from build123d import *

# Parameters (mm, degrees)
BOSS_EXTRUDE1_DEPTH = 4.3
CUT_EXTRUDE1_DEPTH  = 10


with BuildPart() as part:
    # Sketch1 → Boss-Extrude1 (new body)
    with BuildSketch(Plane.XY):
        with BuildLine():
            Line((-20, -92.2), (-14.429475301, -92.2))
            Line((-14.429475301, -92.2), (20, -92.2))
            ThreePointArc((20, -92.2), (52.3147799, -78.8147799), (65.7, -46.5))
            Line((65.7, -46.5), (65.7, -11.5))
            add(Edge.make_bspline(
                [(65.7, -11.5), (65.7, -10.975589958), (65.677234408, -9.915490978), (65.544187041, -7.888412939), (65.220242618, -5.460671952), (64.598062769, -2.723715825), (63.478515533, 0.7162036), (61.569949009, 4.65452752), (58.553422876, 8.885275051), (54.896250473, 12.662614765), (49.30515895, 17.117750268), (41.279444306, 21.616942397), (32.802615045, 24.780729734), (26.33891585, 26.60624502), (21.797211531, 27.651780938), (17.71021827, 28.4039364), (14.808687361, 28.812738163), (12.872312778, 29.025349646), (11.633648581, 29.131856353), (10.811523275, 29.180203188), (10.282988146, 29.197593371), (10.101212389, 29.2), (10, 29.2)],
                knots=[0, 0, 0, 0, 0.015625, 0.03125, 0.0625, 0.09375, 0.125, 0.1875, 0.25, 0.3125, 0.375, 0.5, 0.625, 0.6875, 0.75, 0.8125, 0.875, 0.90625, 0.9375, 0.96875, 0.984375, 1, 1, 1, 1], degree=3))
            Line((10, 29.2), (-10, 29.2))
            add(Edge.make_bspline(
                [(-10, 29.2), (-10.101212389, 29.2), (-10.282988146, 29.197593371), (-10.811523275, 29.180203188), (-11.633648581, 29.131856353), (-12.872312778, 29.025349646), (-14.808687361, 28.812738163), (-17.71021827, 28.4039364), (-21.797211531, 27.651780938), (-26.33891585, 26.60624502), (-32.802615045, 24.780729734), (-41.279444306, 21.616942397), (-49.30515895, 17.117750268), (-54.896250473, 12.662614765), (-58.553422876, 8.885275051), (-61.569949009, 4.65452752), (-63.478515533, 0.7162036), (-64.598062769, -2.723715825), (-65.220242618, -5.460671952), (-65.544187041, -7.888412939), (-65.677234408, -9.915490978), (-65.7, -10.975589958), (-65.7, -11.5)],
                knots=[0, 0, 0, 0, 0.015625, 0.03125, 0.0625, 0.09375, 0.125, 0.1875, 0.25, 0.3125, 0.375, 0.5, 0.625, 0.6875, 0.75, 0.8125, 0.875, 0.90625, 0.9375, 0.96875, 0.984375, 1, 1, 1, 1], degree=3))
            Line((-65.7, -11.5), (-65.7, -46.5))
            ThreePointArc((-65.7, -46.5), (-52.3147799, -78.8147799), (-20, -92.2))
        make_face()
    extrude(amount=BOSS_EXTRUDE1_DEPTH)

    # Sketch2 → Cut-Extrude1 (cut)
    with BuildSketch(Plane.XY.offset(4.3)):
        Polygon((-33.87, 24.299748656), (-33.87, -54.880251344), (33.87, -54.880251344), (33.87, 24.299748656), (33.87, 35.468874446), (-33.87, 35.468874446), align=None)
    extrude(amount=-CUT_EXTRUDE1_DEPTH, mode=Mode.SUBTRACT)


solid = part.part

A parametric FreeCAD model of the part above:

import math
import FreeCAD as App
import Part
import Sketcher

V = App.Vector

doc = App.newDocument("Part")
body = doc.addObject("PartDesign::Body", "Body")

sketch1 = body.newObject("Sketcher::SketchObject", "Sketch")
sketch1.AttachmentSupport = (doc.getObject("XY_Plane"), [""])
sketch1.MapMode = "FlatFace"
sketch1.addGeometry([
    Part.LineSegment(V(-20, -92.2, 0), V(20, -92.2, 0)),
    Part.ArcOfCircle(Part.Circle(V(20, -46.5, 0), V(0, 0, 1), 45.7), math.radians(-90), math.radians(0)),
    Part.LineSegment(V(65.7, -46.5, 0), V(65.7, -11.5, 0)),
    Part.BSplineCurve([V(65.7, -11.5, 0), V(65.7, -10.97559, 0), V(65.677234, -9.915491, 0), V(65.544187, -7.888413, 0), V(65.220243, -5.460672, 0), V(64.598063, -2.723716, 0), V(63.478516, 0.716204, 0), V(61.569949, 4.654528, 0), V(58.553423, 8.885275, 0), V(54.89625, 12.662615, 0), V(49.305159, 17.11775, 0), V(41.279444, 21.616942, 0), V(32.802615, 24.78073, 0), V(26.338916, 26.606245, 0), V(21.797212, 27.651781, 0), V(17.710218, 28.403936, 0), V(14.808687, 28.812738, 0), V(12.872313, 29.02535, 0), V(11.633649, 29.131856, 0), V(10.811523, 29.180203, 0), V(10.282988, 29.197593, 0), V(10.101212, 29.2, 0), V(10, 29.2, 0)], [4, 1, 1, 1, 1, 1, 1, 1, 1, 1, 1, 1, 1, 1, 1, 1, 1, 1, 1, 1, 4], [0, 0.015625, 0.03125, 0.0625, 0.09375, 0.125, 0.1875, 0.25, 0.3125, 0.375, 0.5, 0.625, 0.6875, 0.75, 0.8125, 0.875, 0.90625, 0.9375, 0.96875, 0.984375, 1], False, 3, [1, 1, 1, 1, 1, 1, 1, 1, 1, 1, 1, 1, 1, 1, 1, 1, 1, 1, 1, 1, 1, 1, 1], False),
    Part.LineSegment(V(10, 29.2, 0), V(-10, 29.2, 0)),
    Part.BSplineCurve([V(-10, 29.2, 0), V(-10.101212, 29.2, 0), V(-10.282988, 29.197593, 0), V(-10.811523, 29.180203, 0), V(-11.633649, 29.131856, 0), V(-12.872313, 29.02535, 0), V(-14.808687, 28.812738, 0), V(-17.710218, 28.403936, 0), V(-21.797212, 27.651781, 0), V(-26.338916, 26.606245, 0), V(-32.802615, 24.78073, 0), V(-41.279444, 21.616942, 0), V(-49.305159, 17.11775, 0), V(-54.89625, 12.662615, 0), V(-58.553423, 8.885275, 0), V(-61.569949, 4.654528, 0), V(-63.478516, 0.716204, 0), V(-64.598063, -2.723716, 0), V(-65.220243, -5.460672, 0), V(-65.544187, -7.888413, 0), V(-65.677234, -9.915491, 0), V(-65.7, -10.97559, 0), V(-65.7, -11.5, 0)], [4, 1, 1, 1, 1, 1, 1, 1, 1, 1, 1, 1, 1, 1, 1, 1, 1, 1, 1, 1, 4], [0, 0.015625, 0.03125, 0.0625, 0.09375, 0.125, 0.1875, 0.25, 0.3125, 0.375, 0.5, 0.625, 0.6875, 0.75, 0.8125, 0.875, 0.90625, 0.9375, 0.96875, 0.984375, 1], False, 3, [1, 1, 1, 1, 1, 1, 1, 1, 1, 1, 1, 1, 1, 1, 1, 1, 1, 1, 1, 1, 1, 1, 1], False),
    Part.LineSegment(V(-65.7, -11.5, 0), V(-65.7, -46.5, 0)),
    Part.ArcOfCircle(Part.Circle(V(-20, -46.5, 0), V(0, 0, 1), 45.7), math.radians(-180), math.radians(-90)),
], False)
sketch1.addConstraint([
    Sketcher.Constraint("Block", 3),
    Sketcher.Constraint("Block", 5),
    Sketcher.Constraint("Tangent", 0, 2, 1, 1),
    Sketcher.Constraint("Tangent", 1, 2, 2, 1),
    Sketcher.Constraint("Coincident", 2, 2, 3, 1),
    Sketcher.Constraint("Coincident", 3, 2, 4, 1),
    Sketcher.Constraint("Coincident", 4, 2, 5, 1),
    Sketcher.Constraint("Coincident", 5, 2, 6, 1),
    Sketcher.Constraint("Tangent", 6, 2, 7, 1),
    Sketcher.Constraint("Tangent", 7, 2, 0, 1),
    Sketcher.Constraint("Horizontal", 0),
    Sketcher.Constraint("Vertical", 2),
    Sketcher.Constraint("Vertical", 6),
    Sketcher.Constraint("Equal", 1, 7),
    Sketcher.Constraint("Radius", 1, 45.7),
    Sketcher.Constraint("DistanceY", 2, 1, 2, 2, 35.0),
])
pad1 = body.newObject("PartDesign::Pad", "Pad")
pad1.Profile = sketch1
pad1.Length = 4.3

sketch2 = body.newObject("Sketcher::SketchObject", "Sketch001")
sketch2.AttachmentSupport = (doc.getObject("XY_Plane"), [""])
sketch2.MapMode = "FlatFace"
sketch2.AttachmentOffset = App.Placement(V(0, 0, 4.3), App.Rotation())
sketch2.addGeometry([
    Part.LineSegment(V(-33.87, -54.880251, 0), V(33.87, -54.880251, 0)),
    Part.LineSegment(V(33.87, -54.880251, 0), V(33.87, 35.468874, 0)),
    Part.LineSegment(V(33.87, 35.468874, 0), V(-33.87, 35.468874, 0)),
    Part.LineSegment(V(-33.87, 35.468874, 0), V(-33.87, -54.880251, 0)),
], False)
sketch2.addConstraint([
    Sketcher.Constraint("Coincident", 0, 2, 1, 1),
    Sketcher.Constraint("Coincident", 1, 2, 2, 1),
    Sketcher.Constraint("Coincident", 2, 2, 3, 1),
    Sketcher.Constraint("Coincident", 3, 2, 0, 1),
    Sketcher.Constraint("Horizontal", 0),
    Sketcher.Constraint("Vertical", 1),
    Sketcher.Constraint("Horizontal", 2),
    Sketcher.Constraint("Vertical", 3),
    Sketcher.Constraint("DistanceX", 0, 1, 0, 2, 67.74),
    Sketcher.Constraint("DistanceX", -1, 1, 0, 2, 33.87),
    Sketcher.Constraint("DistanceY", 1, 1, 1, 2, 90.349126),
    Sketcher.Constraint("DistanceY", 0, 2, -1, 1, 54.880251),
])
pocket1 = body.newObject("PartDesign::Pocket", "Pocket")
pocket1.Profile = sketch2
pocket1.Length = 10

doc.recompute()
